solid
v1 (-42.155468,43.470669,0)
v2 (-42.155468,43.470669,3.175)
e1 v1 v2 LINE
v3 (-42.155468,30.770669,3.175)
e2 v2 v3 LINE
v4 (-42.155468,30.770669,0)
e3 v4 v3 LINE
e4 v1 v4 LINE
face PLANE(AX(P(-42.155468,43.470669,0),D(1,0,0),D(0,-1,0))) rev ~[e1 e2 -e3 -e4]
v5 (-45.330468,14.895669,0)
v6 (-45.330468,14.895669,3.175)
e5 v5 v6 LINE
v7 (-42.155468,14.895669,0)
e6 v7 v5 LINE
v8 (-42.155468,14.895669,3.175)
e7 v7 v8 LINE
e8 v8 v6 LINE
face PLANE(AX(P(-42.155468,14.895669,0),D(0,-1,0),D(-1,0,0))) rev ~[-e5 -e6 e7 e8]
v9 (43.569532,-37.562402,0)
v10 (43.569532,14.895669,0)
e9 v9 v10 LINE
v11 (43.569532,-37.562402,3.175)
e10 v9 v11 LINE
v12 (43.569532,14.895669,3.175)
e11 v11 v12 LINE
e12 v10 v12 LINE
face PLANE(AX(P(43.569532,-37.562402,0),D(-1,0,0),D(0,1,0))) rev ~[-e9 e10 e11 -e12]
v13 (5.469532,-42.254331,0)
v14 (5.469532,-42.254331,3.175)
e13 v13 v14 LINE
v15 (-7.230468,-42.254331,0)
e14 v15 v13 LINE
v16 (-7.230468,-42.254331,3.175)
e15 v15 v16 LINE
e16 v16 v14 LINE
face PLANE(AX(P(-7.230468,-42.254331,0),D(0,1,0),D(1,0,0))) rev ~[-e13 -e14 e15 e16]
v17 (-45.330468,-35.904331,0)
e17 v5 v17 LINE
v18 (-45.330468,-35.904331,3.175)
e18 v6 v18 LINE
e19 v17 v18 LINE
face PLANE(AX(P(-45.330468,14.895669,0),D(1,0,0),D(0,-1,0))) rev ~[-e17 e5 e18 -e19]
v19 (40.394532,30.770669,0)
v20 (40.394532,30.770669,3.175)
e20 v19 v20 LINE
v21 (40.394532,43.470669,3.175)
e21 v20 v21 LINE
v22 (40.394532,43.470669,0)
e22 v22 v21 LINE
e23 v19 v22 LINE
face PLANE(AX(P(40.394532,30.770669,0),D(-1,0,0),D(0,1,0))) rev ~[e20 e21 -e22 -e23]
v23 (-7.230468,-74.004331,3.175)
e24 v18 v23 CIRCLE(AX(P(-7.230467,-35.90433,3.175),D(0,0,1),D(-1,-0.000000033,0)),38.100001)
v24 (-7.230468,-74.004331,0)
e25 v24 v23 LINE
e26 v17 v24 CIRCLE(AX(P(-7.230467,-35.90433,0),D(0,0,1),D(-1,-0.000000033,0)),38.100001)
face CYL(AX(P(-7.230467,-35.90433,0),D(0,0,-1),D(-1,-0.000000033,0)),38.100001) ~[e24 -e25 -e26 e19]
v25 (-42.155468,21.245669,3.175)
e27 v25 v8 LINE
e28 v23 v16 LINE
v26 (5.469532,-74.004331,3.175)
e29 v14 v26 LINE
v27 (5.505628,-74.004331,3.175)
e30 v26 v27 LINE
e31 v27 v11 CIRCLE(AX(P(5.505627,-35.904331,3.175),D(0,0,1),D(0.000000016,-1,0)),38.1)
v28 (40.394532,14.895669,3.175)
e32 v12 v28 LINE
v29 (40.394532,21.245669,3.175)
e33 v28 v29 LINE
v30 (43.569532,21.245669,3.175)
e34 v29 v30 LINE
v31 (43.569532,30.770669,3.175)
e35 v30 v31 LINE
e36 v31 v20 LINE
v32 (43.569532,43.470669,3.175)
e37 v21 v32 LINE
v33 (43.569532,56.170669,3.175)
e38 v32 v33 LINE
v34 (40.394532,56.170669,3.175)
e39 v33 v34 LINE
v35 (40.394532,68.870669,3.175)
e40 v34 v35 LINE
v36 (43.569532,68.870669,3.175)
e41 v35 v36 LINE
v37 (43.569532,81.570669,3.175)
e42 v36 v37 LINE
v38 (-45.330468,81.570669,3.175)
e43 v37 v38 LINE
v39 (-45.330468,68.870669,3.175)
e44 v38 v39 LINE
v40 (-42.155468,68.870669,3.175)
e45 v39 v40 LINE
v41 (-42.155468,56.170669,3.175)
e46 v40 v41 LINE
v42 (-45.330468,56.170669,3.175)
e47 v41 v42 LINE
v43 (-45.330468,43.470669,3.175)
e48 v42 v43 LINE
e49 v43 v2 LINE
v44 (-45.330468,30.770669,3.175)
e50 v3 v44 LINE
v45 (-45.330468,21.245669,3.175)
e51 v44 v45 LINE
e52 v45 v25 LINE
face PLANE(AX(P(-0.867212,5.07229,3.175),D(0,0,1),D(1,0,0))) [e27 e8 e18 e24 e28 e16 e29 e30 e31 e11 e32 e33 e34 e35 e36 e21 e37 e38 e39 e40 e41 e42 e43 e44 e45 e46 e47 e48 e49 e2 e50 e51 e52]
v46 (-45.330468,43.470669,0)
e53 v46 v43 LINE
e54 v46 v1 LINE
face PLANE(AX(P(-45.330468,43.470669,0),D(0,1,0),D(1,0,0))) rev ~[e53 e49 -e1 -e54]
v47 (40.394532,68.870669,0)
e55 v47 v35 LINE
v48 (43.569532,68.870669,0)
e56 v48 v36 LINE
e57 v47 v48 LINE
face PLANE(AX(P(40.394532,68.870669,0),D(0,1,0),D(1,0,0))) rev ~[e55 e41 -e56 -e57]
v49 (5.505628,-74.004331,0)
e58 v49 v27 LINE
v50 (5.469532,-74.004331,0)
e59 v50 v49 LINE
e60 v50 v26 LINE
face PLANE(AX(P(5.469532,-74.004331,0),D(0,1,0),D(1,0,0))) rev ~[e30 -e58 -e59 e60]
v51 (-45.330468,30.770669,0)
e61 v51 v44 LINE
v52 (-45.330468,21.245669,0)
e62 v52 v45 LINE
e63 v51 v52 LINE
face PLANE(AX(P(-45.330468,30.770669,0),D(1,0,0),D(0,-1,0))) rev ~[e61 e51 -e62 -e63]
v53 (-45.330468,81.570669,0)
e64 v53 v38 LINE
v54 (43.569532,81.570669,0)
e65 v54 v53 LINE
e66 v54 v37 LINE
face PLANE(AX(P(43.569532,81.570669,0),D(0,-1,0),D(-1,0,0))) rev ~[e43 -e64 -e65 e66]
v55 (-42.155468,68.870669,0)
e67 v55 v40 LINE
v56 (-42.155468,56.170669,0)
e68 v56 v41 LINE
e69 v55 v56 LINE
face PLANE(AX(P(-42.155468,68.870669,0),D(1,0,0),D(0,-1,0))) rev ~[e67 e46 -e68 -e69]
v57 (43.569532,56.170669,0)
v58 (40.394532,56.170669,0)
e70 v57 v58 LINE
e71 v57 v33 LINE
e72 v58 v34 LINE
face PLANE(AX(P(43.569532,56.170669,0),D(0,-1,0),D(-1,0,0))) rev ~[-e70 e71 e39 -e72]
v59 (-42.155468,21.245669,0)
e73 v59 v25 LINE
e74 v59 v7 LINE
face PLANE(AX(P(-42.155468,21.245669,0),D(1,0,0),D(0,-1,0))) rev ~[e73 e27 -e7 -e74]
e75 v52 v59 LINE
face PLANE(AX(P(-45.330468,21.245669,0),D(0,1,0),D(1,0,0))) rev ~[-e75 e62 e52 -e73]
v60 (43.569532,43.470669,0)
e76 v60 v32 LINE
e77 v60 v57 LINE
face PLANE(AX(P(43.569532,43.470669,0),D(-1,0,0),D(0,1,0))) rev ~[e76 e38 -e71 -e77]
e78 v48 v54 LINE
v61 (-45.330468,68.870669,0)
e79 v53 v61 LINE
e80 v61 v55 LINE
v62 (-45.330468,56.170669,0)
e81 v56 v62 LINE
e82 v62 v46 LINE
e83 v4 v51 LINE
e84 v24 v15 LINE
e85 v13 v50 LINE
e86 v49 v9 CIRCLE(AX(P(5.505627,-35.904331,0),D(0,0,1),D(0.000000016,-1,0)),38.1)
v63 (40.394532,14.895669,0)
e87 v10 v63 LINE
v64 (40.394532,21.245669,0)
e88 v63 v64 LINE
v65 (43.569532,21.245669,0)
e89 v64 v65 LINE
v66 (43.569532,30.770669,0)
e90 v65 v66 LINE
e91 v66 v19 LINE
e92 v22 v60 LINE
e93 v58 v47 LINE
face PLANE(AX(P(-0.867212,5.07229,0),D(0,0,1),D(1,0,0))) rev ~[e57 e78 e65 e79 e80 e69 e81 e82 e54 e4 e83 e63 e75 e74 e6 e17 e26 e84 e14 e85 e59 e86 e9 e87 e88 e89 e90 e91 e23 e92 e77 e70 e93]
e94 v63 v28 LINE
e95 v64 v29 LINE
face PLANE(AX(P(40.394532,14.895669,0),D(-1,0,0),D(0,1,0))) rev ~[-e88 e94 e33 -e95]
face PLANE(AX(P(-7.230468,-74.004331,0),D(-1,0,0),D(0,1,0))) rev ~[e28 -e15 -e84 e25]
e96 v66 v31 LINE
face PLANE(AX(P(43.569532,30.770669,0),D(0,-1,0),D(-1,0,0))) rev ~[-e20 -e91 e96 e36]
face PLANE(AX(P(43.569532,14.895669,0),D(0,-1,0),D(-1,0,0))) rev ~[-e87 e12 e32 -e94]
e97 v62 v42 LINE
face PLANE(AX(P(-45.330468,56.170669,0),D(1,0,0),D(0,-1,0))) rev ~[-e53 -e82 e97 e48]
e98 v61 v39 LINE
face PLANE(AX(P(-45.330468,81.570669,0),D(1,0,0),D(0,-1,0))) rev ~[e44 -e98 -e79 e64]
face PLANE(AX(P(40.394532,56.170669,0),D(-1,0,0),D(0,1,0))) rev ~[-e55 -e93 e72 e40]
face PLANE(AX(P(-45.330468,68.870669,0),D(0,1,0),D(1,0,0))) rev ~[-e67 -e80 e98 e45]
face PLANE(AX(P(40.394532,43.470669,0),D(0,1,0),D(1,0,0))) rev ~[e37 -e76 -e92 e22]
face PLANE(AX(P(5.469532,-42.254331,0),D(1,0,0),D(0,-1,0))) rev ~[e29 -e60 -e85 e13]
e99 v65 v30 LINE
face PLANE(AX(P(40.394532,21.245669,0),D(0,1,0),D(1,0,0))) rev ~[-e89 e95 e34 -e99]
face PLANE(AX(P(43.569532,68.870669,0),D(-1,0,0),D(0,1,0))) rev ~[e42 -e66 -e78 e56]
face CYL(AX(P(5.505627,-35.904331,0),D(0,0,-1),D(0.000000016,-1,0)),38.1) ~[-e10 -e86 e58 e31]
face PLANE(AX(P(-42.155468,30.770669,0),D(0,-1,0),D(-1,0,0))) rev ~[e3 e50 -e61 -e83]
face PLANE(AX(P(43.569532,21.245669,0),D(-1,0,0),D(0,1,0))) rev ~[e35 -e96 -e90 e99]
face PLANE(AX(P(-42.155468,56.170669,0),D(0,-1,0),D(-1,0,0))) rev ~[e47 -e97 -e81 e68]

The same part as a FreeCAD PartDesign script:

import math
import FreeCAD as App
import Part
import Sketcher
from FreeCAD import Vector
Q = App.Units.Quantity

doc = App.newDocument("Part")
body = doc.addObject("PartDesign::Body", "Body")

# Sketch on XY plane
sketch1 = doc.addObject("Sketcher::SketchObject", "Sketch")
body.addObject(sketch1)
sketch1.AttachmentSupport = (doc.XY_Plane, [""])
sketch1.MapMode = "FlatFace"
sketch1.addGeometry([
    Part.LineSegment(Vector(43.57, 81.571, 0), Vector(-45.33, 81.571, 0)),  # 0
    Part.LineSegment(Vector(-45.33, 81.571, 0), Vector(-45.33, 68.871, 0)),  # 1
    Part.LineSegment(Vector(-45.33, 68.871, 0), Vector(-42.155, 68.871, 0)),  # 2
    Part.LineSegment(Vector(-42.155, 68.871, 0), Vector(-42.155, 56.171, 0)),  # 3
    Part.LineSegment(Vector(-42.155, 56.171, 0), Vector(-45.33, 56.171, 0)),  # 4
    Part.LineSegment(Vector(-45.33, 56.171, 0), Vector(-45.33, 43.471, 0)),  # 5
    Part.LineSegment(Vector(-45.33, 43.471, 0), Vector(-42.155, 43.471, 0)),  # 6
    Part.LineSegment(Vector(-42.155, 43.471, 0), Vector(-42.155, 30.771, 0)),  # 7
    Part.LineSegment(Vector(-42.155, 30.771, 0), Vector(-45.33, 30.771, 0)),  # 8
    Part.LineSegment(Vector(-45.33, 30.771, 0), Vector(-45.33, 21.246, 0)),  # 9
    Part.LineSegment(Vector(-45.33, 21.246, 0), Vector(-42.155, 21.246, 0)),  # 10
    Part.LineSegment(Vector(-42.155, 21.246, 0), Vector(-42.155, 14.896, 0)),  # 11
    Part.LineSegment(Vector(-42.155, 14.896, 0), Vector(-45.33, 14.896, 0)),  # 12
    Part.LineSegment(Vector(-45.33, 14.896, 0), Vector(-45.33, -35.904, 0)),  # 13
    Part.ArcOfCircle(Part.Circle(Vector(-7.23, -35.904, 0), Vector(0, 0, 1), 38.1), math.radians(-180), math.radians(-90)),  # 14
    Part.LineSegment(Vector(-7.23, -74.004, 0), Vector(-7.23, -42.254, 0)),  # 15
    Part.LineSegment(Vector(-7.23, -42.254, 0), Vector(5.47, -42.254, 0)),  # 16
    Part.LineSegment(Vector(5.47, -42.254, 0), Vector(5.47, -74.004, 0)),  # 17
    Part.LineSegment(Vector(5.47, -74.004, 0), Vector(5.506, -74.004, 0)),  # 18
    Part.ArcOfCircle(Part.Circle(Vector(5.506, -35.904, 0), Vector(0, 0, 1), 38.1), math.radians(-90), math.radians(-2)),  # 19
    Part.LineSegment(Vector(43.57, -37.562, 0), Vector(43.57, 14.896, 0)),  # 20
    Part.LineSegment(Vector(43.57, 14.896, 0), Vector(40.395, 14.896, 0)),  # 21
    Part.LineSegment(Vector(40.395, 14.896, 0), Vector(40.395, 21.246, 0)),  # 22
    Part.LineSegment(Vector(40.395, 21.246, 0), Vector(43.57, 21.246, 0)),  # 23
    Part.LineSegment(Vector(43.57, 21.246, 0), Vector(43.57, 30.771, 0)),  # 24
    Part.LineSegment(Vector(43.57, 30.771, 0), Vector(40.395, 30.771, 0)),  # 25
    Part.LineSegment(Vector(40.395, 30.771, 0), Vector(40.395, 43.471, 0)),  # 26
    Part.LineSegment(Vector(40.395, 43.471, 0), Vector(43.57, 43.471, 0)),  # 27
    Part.LineSegment(Vector(43.57, 43.471, 0), Vector(43.57, 56.171, 0)),  # 28
    Part.LineSegment(Vector(43.57, 56.171, 0), Vector(40.395, 56.171, 0)),  # 29
    Part.LineSegment(Vector(40.395, 56.171, 0), Vector(40.395, 68.871, 0)),  # 30
    Part.LineSegment(Vector(40.395, 68.871, 0), Vector(43.57, 68.871, 0)),  # 31
    Part.LineSegment(Vector(43.57, 68.871, 0), Vector(43.57, 81.571, 0)),  # 32
], False)
sketch1.addConstraint([
    Sketcher.Constraint("Coincident", 0, 2, 1, 1),
    Sketcher.Constraint("Coincident", 1, 2, 2, 1),
    Sketcher.Constraint("Coincident", 2, 2, 3, 1),
    Sketcher.Constraint("Coincident", 3, 2, 4, 1),
    Sketcher.Constraint("Coincident", 4, 2, 5, 1),
    Sketcher.Constraint("Coincident", 5, 2, 6, 1),
    Sketcher.Constraint("Coincident", 6, 2, 7, 1),
    Sketcher.Constraint("Coincident", 7, 2, 8, 1),
    Sketcher.Constraint("Coincident", 8, 2, 9, 1),
    Sketcher.Constraint("Coincident", 9, 2, 10, 1),
    Sketcher.Constraint("Coincident", 10, 2, 11, 1),
    Sketcher.Constraint("Coincident", 11, 2, 12, 1),
    Sketcher.Constraint("Coincident", 12, 2, 13, 1),
    Sketcher.Constraint("Tangent", 13, 2, 14, 1),
    Sketcher.Constraint("Coincident", 14, 2, 15, 1),
    Sketcher.Constraint("Coincident", 15, 2, 16, 1),
    Sketcher.Constraint("Coincident", 16, 2, 17, 1),
    Sketcher.Constraint("Coincident", 17, 2, 18, 1),
    Sketcher.Constraint("Tangent", 18, 2, 19, 1),
    Sketcher.Constraint("Coincident", 19, 2, 20, 1),
    Sketcher.Constraint("Coincident", 20, 2, 21, 1),
    Sketcher.Constraint("Coincident", 21, 2, 22, 1),
    Sketcher.Constraint("Coincident", 22, 2, 23, 1),
    Sketcher.Constraint("Coincident", 23, 2, 24, 1),
    Sketcher.Constraint("Coincident", 24, 2, 25, 1),
    Sketcher.Constraint("Coincident", 25, 2, 26, 1),
    Sketcher.Constraint("Coincident", 26, 2, 27, 1),
    Sketcher.Constraint("Coincident", 27, 2, 28, 1),
    Sketcher.Constraint("Coincident", 28, 2, 29, 1),
    Sketcher.Constraint("Coincident", 29, 2, 30, 1),
    Sketcher.Constraint("Coincident", 30, 2, 31, 1),
    Sketcher.Constraint("Coincident", 31, 2, 32, 1),
    Sketcher.Constraint("Coincident", 32, 2, 0, 1),
    Sketcher.Constraint("Horizontal", 0),
    Sketcher.Constraint("Vertical", 1),
    Sketcher.Constraint("Horizontal", 2),
    Sketcher.Constraint("Vertical", 3),
    Sketcher.Constraint("Horizontal", 4),
    Sketcher.Constraint("Vertical", 5),
    Sketcher.Constraint("Horizontal", 6),
    Sketcher.Constraint("Vertical", 7),
    Sketcher.Constraint("Horizontal", 8),
    Sketcher.Constraint("Vertical", 9),
    Sketcher.Constraint("Horizontal", 10),
    Sketcher.Constraint("Vertical", 11),
    Sketcher.Constraint("Horizontal", 12),
    Sketcher.Constraint("Vertical", 13),
    Sketcher.Constraint("Vertical", 15),
    Sketcher.Constraint("Horizontal", 16),
    Sketcher.Constraint("Vertical", 17),
    Sketcher.Constraint("Vertical", 20),
    Sketcher.Constraint("Horizontal", 21),
    Sketcher.Constraint("Vertical", 22),
    Sketcher.Constraint("Horizontal", 23),
    Sketcher.Constraint("Vertical", 24),
    Sketcher.Constraint("Horizontal", 25),
    Sketcher.Constraint("Vertical", 26),
    Sketcher.Constraint("Horizontal", 27),
    Sketcher.Constraint("Vertical", 28),
    Sketcher.Constraint("Horizontal", 29),
    Sketcher.Constraint("Vertical", 30),
    Sketcher.Constraint("Horizontal", 31),
    Sketcher.Constraint("Vertical", 32),
    Sketcher.Constraint("Equal", 14, 19),
    Sketcher.Constraint("Horizontal", 14, 3, 19, 3),
    Sketcher.Constraint("Horizontal", 12, 2, 20, 2),
    Sketcher.Constraint("Horizontal", 10, 2, 22, 2),
    Sketcher.Constraint("Horizontal", 8, 2, 24, 2),
    Sketcher.Constraint("Horizontal", 6, 2, 26, 2),
    Sketcher.Constraint("Horizontal", 4, 2, 28, 2),
    Sketcher.Constraint("Horizontal", 2, 2, 30, 2),
    Sketcher.Constraint("Vertical", 1, 2, 4, 2),
    Sketcher.Constraint("Vertical", 3, 2, 6, 2),
    Sketcher.Constraint("Vertical", 5, 2, 8, 2),
    Sketcher.Constraint("Vertical", 7, 2, 10, 2),
    Sketcher.Constraint("Vertical", 9, 2, 12, 2),
    Sketcher.Constraint("Vertical", 19, 3, 18, 2),
    Sketcher.Constraint("Vertical", 20, 2, 23, 2),
    Sketcher.Constraint("Vertical", 22, 2, 25, 2),
    Sketcher.Constraint("Vertical", 24, 2, 27, 2),
    Sketcher.Constraint("Vertical", 26, 2, 29, 2),
    Sketcher.Constraint("Vertical", 28, 2, 31, 2),
    Sketcher.Constraint("Equal", 12, 21),
    Sketcher.Constraint("Equal", 16, 1),
    Sketcher.Constraint("Equal", 1, 3),
    Sketcher.Constraint("Equal", 3, 5),
    Sketcher.Constraint("Equal", 5, 7),
    Sketcher.Constraint("Radius", 14, Q("1.5 in")),
    Sketcher.Constraint("DistanceY", 13, 2, 13, 1, Q("2 in")),
    Sketcher.Constraint("DistanceX", 0, 2, 0, 1, Q("3.5 in")),
    Sketcher.Constraint("DistanceX", 16, 1, 16, 2, Q("0.5 in")),
    Sketcher.Constraint("DistanceX", 13, 2, 16, 2, Q("2 in")),
    Sketcher.Constraint("DistanceY", 11, 2, 11, 1, Q("0.25 in")),
    Sketcher.Constraint("DistanceY", 15, 1, 15, 2, Q("1.25 in")),
    Sketcher.Constraint("DistanceX", 2, 1, 2, 2, Q("0.125 in")),
    Sketcher.Constraint("DistanceY", 9, 2, 9, 1, Q("0.375 in")),
    Sketcher.Constraint("DistanceY", 20, 1, 20, 2, Q("52.458071 mm")),
    Sketcher.Constraint("DistanceY", 19, 2, -1, 1, Q("37.562402 mm")),
    Sketcher.Constraint("DistanceX", 0, 2, -1, 1, Q("45.330468 mm")),
])
pad1 = doc.addObject("PartDesign::Pad", "Pad")
body.addObject(pad1)
pad1.Profile = sketch1
pad1.Length = Q("0.125 in")

doc.recompute()
